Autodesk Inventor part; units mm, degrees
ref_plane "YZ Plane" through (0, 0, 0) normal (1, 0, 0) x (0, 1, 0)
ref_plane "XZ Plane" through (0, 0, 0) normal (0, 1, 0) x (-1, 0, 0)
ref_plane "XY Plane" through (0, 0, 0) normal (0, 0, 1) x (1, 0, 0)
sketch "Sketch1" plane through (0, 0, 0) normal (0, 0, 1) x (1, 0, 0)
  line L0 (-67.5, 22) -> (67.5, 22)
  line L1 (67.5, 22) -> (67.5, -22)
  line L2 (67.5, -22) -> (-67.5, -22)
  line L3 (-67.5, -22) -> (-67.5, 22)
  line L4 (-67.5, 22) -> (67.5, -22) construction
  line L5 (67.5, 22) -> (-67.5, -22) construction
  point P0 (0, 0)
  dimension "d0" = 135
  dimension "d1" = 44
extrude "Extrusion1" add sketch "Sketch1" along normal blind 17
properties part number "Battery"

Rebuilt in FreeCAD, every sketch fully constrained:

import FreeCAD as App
import Part
import Sketcher
from FreeCAD import Vector
Q = App.Units.Quantity

doc = App.newDocument("Part")
body = doc.addObject("PartDesign::Body", "Body")

sketch1 = body.newObject("Sketcher::SketchObject", "Sketch")
sketch1.AttachmentSupport = (doc.getObject("XY_Plane"), [""])
sketch1.MapMode = "FlatFace"
sketch1.addGeometry([
    Part.LineSegment(Vector(67.5, 22, 0), Vector(-67.5, 22, 0)),
    Part.LineSegment(Vector(-67.5, 22, 0), Vector(-67.5, -22, 0)),
    Part.LineSegment(Vector(-67.5, -22, 0), Vector(67.5, -22, 0)),
    Part.LineSegment(Vector(67.5, -22, 0), Vector(67.5, 22, 0)),
], False)
sketch1.addConstraint([
    Sketcher.Constraint("Coincident", 0, 2, 1, 1),
    Sketcher.Constraint("Coincident", 1, 2, 2, 1),
    Sketcher.Constraint("Coincident", 2, 2, 3, 1),
    Sketcher.Constraint("Coincident", 3, 2, 0, 1),
    Sketcher.Constraint("Horizontal", 0),
    Sketcher.Constraint("Vertical", 1),
    Sketcher.Constraint("Horizontal", 2),
    Sketcher.Constraint("Vertical", 3),
    Sketcher.Constraint("Symmetric", 0, 2, 2, 2, -1, 1),
    Sketcher.Constraint("DistanceX", 0, 2, 0, 1, Q("135 mm")),
    Sketcher.Constraint("DistanceY", 1, 2, 1, 1, Q("44 mm")),
])
pad1 = body.newObject("PartDesign::Pad", "Pad")
pad1.Profile = sketch1
pad1.Length = 17

doc.recompute()
